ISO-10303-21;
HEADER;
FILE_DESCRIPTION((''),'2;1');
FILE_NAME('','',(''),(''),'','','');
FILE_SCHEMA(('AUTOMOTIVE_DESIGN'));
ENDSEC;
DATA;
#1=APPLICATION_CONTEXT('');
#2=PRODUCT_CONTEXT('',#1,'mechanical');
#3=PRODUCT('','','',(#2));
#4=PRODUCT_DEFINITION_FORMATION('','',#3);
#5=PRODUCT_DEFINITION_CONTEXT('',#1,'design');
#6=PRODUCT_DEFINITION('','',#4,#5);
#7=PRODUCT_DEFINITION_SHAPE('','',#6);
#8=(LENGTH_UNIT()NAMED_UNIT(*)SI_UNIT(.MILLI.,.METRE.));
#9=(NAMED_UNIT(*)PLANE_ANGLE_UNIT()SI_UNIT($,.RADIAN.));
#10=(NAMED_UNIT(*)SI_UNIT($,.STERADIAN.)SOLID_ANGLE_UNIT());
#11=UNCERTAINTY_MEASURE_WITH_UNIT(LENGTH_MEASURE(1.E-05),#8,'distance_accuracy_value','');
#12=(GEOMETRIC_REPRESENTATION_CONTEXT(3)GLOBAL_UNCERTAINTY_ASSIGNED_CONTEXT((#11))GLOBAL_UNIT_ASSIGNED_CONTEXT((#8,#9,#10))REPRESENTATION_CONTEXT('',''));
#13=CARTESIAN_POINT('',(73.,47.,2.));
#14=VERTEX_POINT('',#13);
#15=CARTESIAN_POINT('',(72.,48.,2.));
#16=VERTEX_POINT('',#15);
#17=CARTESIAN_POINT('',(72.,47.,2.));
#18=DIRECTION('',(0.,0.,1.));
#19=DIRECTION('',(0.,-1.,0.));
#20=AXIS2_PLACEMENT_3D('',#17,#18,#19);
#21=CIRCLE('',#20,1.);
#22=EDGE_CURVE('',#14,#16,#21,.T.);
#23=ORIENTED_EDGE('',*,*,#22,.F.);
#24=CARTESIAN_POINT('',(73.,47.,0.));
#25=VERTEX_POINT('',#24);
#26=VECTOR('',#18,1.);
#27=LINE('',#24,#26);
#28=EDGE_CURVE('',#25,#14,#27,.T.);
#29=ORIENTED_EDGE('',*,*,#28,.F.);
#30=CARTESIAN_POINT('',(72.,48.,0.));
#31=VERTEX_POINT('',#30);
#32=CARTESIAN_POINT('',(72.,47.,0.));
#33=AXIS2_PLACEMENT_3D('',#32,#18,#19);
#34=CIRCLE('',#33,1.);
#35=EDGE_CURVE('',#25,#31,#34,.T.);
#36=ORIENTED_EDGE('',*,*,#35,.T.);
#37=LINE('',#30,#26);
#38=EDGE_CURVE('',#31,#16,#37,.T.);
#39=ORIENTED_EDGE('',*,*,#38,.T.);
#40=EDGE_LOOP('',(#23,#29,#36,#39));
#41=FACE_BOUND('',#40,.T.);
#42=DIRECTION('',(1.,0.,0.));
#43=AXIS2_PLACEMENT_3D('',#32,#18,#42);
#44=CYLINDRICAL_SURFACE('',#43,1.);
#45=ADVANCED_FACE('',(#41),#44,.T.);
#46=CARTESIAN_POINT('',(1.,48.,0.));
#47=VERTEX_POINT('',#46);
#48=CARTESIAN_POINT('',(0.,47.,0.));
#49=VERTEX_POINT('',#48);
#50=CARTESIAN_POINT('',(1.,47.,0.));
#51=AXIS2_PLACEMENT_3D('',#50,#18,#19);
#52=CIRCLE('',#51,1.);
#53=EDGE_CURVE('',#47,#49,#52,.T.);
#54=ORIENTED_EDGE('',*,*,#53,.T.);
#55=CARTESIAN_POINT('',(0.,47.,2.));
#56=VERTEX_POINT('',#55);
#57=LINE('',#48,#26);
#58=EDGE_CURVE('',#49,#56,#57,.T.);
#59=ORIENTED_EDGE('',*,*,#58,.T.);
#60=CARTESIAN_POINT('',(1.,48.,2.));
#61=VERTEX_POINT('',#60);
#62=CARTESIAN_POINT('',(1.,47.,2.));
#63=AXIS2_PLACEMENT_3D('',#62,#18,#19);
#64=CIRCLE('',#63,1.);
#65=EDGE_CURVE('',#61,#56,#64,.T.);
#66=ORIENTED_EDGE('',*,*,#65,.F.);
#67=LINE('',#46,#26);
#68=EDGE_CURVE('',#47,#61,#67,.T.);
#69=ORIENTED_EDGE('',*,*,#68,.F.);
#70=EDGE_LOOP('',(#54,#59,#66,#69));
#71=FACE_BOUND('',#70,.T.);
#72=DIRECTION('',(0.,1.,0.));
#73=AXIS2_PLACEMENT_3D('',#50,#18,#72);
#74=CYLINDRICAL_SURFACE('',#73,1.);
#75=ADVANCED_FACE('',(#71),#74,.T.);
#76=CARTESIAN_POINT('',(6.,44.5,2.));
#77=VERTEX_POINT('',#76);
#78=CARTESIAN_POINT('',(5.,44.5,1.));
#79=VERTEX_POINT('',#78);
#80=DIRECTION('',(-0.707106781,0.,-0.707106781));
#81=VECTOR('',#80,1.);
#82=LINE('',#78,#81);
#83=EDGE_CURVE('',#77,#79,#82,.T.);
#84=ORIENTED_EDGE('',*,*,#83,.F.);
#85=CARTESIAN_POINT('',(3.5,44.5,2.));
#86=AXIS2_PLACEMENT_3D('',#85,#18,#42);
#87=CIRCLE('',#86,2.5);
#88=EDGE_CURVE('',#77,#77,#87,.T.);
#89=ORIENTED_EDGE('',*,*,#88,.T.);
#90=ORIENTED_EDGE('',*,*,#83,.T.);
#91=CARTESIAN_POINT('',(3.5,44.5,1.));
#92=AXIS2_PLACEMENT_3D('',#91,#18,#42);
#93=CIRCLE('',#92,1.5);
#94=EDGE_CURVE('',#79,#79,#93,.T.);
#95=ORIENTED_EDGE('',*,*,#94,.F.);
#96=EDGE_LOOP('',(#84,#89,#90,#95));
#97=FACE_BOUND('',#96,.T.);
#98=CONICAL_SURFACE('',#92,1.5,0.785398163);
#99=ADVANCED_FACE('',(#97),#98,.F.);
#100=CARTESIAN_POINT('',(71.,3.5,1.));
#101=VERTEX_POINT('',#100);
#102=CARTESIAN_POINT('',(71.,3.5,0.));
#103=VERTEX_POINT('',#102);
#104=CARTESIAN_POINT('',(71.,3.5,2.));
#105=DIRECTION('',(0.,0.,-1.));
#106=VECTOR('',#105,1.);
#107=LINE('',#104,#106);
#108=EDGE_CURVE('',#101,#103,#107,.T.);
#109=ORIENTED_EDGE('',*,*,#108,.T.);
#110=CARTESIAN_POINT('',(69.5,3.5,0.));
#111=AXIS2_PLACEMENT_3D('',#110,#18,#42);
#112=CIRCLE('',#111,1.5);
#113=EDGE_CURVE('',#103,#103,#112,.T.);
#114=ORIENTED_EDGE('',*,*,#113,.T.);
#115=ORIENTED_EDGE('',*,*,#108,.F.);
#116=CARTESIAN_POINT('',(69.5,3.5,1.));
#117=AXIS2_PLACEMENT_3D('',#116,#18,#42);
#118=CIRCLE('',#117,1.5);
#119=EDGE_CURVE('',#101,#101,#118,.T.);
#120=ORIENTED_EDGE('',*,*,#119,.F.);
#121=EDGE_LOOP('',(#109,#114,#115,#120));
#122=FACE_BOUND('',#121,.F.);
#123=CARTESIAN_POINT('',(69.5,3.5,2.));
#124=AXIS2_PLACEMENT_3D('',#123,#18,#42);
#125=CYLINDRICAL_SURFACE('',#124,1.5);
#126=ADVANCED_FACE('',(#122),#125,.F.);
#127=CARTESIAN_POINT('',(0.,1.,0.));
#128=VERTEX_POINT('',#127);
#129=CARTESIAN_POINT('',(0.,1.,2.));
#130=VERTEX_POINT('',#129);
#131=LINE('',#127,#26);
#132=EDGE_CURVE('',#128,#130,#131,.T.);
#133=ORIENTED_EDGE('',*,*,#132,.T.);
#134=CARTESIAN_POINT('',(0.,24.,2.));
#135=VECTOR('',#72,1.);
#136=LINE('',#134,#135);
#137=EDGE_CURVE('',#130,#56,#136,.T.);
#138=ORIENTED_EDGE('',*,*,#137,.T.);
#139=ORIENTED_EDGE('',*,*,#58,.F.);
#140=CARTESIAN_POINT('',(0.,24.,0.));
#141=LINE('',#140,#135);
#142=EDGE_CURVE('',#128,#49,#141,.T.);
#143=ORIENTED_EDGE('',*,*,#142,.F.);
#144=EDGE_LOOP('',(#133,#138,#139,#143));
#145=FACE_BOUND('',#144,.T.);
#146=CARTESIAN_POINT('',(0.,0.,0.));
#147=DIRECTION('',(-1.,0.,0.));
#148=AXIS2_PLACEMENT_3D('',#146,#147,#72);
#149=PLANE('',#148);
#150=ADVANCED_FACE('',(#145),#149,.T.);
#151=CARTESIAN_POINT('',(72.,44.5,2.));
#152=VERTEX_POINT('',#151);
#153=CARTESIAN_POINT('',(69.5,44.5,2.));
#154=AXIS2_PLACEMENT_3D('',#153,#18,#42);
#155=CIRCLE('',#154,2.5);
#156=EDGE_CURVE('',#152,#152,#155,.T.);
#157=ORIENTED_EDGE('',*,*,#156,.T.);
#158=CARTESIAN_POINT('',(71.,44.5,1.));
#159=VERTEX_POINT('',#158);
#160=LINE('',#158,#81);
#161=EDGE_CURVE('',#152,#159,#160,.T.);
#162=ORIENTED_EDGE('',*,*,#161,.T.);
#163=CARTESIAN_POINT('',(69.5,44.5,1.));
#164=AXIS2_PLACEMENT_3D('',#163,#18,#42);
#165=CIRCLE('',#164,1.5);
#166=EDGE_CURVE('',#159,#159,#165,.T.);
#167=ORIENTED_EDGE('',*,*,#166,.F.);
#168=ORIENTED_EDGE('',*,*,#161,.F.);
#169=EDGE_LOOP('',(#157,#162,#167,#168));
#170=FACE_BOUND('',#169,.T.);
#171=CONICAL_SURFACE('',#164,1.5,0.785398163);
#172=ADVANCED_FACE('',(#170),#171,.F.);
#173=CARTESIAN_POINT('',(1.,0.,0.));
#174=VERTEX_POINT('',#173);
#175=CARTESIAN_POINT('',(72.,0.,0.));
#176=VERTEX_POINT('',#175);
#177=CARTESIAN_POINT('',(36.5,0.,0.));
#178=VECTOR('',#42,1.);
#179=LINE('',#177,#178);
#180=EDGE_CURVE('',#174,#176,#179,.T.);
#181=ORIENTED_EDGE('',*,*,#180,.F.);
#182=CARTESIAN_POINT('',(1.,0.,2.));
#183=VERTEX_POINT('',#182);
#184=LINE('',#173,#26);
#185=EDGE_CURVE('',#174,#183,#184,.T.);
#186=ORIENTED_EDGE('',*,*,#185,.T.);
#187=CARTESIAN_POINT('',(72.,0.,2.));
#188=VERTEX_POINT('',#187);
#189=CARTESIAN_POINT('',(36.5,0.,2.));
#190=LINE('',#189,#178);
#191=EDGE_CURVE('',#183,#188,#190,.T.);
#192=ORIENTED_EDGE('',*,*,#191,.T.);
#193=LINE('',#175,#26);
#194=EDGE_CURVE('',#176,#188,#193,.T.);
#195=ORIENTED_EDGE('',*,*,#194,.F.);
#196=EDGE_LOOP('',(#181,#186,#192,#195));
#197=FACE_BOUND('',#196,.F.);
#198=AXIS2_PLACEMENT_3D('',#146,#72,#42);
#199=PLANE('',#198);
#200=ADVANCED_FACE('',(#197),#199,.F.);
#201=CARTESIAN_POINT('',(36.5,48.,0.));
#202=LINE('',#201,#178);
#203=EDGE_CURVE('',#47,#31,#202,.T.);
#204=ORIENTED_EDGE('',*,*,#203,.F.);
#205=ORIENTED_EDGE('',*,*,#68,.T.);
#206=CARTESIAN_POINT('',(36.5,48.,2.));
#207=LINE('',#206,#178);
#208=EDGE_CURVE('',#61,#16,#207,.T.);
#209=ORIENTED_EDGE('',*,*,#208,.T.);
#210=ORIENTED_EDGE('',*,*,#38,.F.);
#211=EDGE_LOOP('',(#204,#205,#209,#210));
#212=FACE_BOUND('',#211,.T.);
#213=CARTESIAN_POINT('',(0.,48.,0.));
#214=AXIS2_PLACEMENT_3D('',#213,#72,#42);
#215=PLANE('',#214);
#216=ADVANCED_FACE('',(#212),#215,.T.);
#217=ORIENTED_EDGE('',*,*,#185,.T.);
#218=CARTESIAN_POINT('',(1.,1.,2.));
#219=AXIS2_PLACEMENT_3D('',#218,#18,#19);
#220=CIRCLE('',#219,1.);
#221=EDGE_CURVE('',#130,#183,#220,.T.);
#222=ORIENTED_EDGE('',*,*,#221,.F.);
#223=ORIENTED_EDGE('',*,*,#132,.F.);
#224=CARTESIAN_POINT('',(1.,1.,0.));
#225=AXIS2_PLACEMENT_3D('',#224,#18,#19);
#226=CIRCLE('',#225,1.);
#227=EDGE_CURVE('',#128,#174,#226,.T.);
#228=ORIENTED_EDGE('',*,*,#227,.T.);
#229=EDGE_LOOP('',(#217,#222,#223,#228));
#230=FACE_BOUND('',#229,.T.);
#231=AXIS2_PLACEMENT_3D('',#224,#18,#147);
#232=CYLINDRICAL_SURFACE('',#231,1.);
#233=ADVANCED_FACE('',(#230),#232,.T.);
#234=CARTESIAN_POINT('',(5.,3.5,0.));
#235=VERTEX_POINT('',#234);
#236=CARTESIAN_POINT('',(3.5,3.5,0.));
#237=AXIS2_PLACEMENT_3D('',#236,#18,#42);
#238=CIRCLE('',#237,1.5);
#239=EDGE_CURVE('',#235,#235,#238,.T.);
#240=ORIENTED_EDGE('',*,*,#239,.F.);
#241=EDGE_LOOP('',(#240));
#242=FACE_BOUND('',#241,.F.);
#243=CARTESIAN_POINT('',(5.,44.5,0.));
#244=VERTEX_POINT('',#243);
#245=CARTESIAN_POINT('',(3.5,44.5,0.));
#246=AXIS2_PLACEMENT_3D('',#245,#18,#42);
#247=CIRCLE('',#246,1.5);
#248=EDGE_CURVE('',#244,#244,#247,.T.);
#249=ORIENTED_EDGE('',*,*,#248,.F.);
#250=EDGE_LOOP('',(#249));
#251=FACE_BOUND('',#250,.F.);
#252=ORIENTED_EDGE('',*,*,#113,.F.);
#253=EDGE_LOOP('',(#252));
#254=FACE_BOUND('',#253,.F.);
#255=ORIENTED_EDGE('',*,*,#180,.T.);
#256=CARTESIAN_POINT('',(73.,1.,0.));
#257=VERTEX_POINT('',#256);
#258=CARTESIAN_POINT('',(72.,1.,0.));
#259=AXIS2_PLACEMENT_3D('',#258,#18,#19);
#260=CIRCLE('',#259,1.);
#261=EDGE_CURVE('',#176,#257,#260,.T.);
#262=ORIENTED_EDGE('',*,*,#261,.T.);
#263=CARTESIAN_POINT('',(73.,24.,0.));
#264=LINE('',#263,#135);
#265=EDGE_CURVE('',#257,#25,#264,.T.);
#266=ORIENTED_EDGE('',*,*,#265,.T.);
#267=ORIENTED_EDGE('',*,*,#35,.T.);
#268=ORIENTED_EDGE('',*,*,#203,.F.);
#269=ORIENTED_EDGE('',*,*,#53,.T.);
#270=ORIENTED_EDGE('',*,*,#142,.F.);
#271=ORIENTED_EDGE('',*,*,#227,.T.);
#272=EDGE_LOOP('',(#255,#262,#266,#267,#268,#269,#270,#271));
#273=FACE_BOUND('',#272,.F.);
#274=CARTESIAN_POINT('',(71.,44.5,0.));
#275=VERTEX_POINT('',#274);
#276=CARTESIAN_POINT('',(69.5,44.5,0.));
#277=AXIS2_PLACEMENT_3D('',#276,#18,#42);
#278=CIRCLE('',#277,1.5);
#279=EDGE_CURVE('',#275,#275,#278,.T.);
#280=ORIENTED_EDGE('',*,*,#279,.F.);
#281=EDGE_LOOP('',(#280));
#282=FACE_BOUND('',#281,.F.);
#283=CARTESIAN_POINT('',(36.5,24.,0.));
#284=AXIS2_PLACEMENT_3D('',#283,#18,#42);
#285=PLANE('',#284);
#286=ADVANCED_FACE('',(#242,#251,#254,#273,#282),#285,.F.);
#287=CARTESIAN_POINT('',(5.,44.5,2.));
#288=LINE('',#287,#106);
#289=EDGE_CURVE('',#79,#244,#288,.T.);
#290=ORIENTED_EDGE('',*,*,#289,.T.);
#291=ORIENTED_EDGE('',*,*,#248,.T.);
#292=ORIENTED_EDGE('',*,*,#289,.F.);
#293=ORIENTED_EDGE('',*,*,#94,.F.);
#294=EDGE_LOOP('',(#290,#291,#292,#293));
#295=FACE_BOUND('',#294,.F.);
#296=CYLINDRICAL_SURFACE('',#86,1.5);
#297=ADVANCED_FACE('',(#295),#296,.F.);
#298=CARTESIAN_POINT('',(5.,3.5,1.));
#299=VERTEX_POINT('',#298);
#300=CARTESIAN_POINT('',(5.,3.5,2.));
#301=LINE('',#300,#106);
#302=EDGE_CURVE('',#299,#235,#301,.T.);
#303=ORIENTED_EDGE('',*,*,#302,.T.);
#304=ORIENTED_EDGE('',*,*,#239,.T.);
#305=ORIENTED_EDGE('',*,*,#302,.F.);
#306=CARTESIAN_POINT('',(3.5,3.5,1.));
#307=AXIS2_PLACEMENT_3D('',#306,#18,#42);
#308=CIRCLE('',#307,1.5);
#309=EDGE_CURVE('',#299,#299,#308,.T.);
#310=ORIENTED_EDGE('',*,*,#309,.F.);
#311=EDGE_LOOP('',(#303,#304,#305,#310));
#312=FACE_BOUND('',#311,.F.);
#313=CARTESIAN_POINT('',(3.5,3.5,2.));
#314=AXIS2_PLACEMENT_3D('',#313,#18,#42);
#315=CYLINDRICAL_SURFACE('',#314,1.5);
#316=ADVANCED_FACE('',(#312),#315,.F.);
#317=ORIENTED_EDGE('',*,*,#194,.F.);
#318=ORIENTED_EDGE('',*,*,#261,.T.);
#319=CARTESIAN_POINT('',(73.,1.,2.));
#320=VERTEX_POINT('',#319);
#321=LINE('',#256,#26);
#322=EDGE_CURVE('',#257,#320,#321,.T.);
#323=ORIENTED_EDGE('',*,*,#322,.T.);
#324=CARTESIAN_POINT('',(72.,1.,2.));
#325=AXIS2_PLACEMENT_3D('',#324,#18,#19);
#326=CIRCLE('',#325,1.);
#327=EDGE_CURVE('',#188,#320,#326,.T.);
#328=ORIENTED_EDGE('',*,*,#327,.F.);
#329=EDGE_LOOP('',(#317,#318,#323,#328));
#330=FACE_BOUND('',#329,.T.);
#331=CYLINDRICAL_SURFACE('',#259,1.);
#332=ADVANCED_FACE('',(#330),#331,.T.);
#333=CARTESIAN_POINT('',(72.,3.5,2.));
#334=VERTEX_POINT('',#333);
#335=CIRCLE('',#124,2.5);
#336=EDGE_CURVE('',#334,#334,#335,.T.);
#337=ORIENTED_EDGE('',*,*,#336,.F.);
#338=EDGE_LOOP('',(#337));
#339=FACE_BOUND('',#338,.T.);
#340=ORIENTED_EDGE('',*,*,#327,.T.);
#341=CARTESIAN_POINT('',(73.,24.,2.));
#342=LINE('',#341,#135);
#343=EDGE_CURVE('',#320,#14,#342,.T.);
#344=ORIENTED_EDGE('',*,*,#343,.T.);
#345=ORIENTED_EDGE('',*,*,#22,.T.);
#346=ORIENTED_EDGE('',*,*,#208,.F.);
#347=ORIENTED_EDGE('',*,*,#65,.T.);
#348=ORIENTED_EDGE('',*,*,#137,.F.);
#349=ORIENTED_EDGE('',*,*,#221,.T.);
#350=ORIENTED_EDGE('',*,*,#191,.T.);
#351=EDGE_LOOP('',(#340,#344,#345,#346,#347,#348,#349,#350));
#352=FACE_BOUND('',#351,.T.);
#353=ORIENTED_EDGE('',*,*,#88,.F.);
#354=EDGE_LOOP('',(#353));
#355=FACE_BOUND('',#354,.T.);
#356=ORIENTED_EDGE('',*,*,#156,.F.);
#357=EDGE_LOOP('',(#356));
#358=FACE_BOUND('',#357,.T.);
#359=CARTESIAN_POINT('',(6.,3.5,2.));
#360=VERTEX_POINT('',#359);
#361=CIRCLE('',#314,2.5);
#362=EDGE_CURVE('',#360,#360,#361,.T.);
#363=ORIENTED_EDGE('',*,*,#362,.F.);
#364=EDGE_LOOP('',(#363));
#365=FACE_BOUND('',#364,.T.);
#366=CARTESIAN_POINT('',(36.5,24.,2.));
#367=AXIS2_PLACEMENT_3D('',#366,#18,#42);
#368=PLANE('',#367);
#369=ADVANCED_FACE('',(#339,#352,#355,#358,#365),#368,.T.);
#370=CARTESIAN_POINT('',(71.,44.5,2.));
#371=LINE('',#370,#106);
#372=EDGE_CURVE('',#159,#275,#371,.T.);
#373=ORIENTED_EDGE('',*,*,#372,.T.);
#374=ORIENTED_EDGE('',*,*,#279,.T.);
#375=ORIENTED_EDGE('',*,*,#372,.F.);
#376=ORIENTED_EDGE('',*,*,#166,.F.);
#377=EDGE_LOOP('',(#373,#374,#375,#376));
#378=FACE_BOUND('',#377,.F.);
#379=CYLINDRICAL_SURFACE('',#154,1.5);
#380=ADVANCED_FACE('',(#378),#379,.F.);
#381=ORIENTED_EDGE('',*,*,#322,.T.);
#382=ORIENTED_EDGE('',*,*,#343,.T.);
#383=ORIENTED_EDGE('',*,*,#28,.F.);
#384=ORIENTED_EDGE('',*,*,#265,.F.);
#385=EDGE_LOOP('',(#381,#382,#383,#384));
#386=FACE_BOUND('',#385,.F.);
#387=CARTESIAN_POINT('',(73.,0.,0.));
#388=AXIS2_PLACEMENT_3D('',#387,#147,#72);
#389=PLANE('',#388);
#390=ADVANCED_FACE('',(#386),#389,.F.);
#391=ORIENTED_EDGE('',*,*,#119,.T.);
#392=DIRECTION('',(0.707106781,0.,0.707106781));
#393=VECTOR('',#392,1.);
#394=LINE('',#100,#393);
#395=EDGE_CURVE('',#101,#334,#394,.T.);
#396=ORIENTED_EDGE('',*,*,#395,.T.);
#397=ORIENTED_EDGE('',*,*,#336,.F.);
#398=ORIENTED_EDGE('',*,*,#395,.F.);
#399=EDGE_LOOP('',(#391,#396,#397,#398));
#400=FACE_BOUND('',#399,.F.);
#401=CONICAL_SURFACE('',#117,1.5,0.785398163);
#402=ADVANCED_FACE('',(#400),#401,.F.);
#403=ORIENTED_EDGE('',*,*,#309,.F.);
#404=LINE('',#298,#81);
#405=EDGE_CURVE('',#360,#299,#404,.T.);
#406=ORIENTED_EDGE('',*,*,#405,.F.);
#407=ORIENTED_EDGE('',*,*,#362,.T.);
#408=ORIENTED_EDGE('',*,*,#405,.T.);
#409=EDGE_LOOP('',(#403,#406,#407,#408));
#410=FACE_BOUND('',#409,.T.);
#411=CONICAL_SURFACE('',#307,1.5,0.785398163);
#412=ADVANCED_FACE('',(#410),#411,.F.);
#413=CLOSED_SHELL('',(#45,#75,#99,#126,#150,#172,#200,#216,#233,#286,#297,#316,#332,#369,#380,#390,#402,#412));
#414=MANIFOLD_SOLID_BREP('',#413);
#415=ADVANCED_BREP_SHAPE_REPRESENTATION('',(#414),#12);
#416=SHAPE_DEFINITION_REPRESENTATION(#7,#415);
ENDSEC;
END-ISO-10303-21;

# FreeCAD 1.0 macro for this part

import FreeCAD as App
import Part
import Sketcher


def edges_at(feature, points):
    """Names of the edges that pass closest to the given points."""
    edges = feature.Shape.Edges
    near = lambda p: min(range(len(edges)), key=lambda i: edges[i].distToShape(Part.Vertex(*p))[0])
    return sorted({f"Edge{near(p) + 1}" for p in points})


def add_polygon(sketch, points):
    """Adds a closed chain of lines whose ends are joined by coincident constraints."""
    first, n = sketch.GeometryCount, len(points)
    for a, b in zip(points, points[1:] + points[:1]):
        sketch.addGeometry(Part.LineSegment(App.Vector(*a, 0), App.Vector(*b, 0)), False)
    for i in range(n):
        sketch.addConstraint(Sketcher.Constraint("Coincident", first + i, 2, first + (i + 1) % n, 1))

doc = App.newDocument("Part")
body = doc.addObject("PartDesign::Body", "Body")

# Sketch on XY plane
sketch1 = body.newObject("Sketcher::SketchObject", "Sketch")
sketch1.AttachmentSupport = (doc.getObject("XY_Plane"), [""])
sketch1.MapMode = "FlatFace"
add_polygon(sketch1, [(0, 48), (0, 0), (73, 0), (73, 48)])  # lines 0-3
sketch1.addConstraint([
    Sketcher.Constraint("Vertical", 0),
    Sketcher.Constraint("Horizontal", 1),
    Sketcher.Constraint("Vertical", 2),
    Sketcher.Constraint("Horizontal", 3),
    Sketcher.Constraint("Coincident", 0, 2, -1, 1),
    Sketcher.Constraint("DistanceX", 1, 1, 1, 2, 73.0),
    Sketcher.Constraint("DistanceY", 0, 2, 0, 1, 48.0),
])
pad1 = body.newObject("PartDesign::Pad", "Pad")
pad1.Profile = sketch1
pad1.Length = 2
doc.recompute()

fillet = body.newObject("PartDesign::Fillet", "Fillet")
fillet.Base = (pad1, edges_at(pad1, [(0, 0, 1)]))
fillet.Radius = 1
doc.recompute()

fillet2 = body.newObject("PartDesign::Fillet", "Fillet001")
fillet2.Base = (fillet, edges_at(fillet, [(73, 0, 1)]))
fillet2.Radius = 1
doc.recompute()

fillet3 = body.newObject("PartDesign::Fillet", "Fillet002")
fillet3.Base = (fillet2, edges_at(fillet2, [(73, 48, 1)]))
fillet3.Radius = 1
doc.recompute()

fillet4 = body.newObject("PartDesign::Fillet", "Fillet003")
fillet4.Base = (fillet3, edges_at(fillet3, [(0, 48, 1)]))
fillet4.Radius = 1

# Sketch on XY plane
sketch2 = body.newObject("Sketcher::SketchObject", "Sketch001")
sketch2.AttachmentSupport = (doc.getObject("XY_Plane"), [""])
sketch2.MapMode = "FlatFace"
sketch2.AttachmentOffset = App.Placement(App.Vector(0, 0, 2), App.Rotation())
sketch2.addGeometry(Part.Circle(App.Vector(3.5, 3.5, 0), App.Vector(0, 0, 1), 1.5), False)
sketch2.addConstraint([
    Sketcher.Constraint("Diameter", 0, 3.0),
    Sketcher.Constraint("DistanceX", -1, 1, 0, 3, 3.5),
    Sketcher.Constraint("DistanceY", -1, 1, 0, 3, 3.5),
])
pocket1 = body.newObject("PartDesign::Pocket", "Pocket")
pocket1.Profile = sketch2
pocket1.Length = 5

# Sketch on XY plane
sketch3 = body.newObject("Sketcher::SketchObject", "Sketch002")
sketch3.AttachmentSupport = (doc.getObject("XY_Plane"), [""])
sketch3.MapMode = "FlatFace"
sketch3.AttachmentOffset = App.Placement(App.Vector(0, 0, 2), App.Rotation())
sketch3.addGeometry(Part.Circle(App.Vector(3.5, 44.5, 0), App.Vector(0, 0, 1), 1.5), False)
sketch3.addConstraint([
    Sketcher.Constraint("Diameter", 0, 3.0),
    Sketcher.Constraint("DistanceX", -1, 1, 0, 3, 3.5),
    Sketcher.Constraint("DistanceY", -1, 1, 0, 3, 44.5),
])
pocket2 = body.newObject("PartDesign::Pocket", "Pocket001")
pocket2.Profile = sketch3
pocket2.Length = 5

# Sketch on XY plane
sketch4 = body.newObject("Sketcher::SketchObject", "Sketch003")
sketch4.AttachmentSupport = (doc.getObject("XY_Plane"), [""])
sketch4.MapMode = "FlatFace"
sketch4.AttachmentOffset = App.Placement(App.Vector(0, 0, 2), App.Rotation())
sketch4.addGeometry(Part.Circle(App.Vector(69.5, 44.5, 0), App.Vector(0, 0, 1), 1.5), False)
sketch4.addConstraint([
    Sketcher.Constraint("Diameter", 0, 3.0),
    Sketcher.Constraint("DistanceX", -1, 1, 0, 3, 69.5),
    Sketcher.Constraint("DistanceY", -1, 1, 0, 3, 44.5),
])
pocket3 = body.newObject("PartDesign::Pocket", "Pocket002")
pocket3.Profile = sketch4
pocket3.Length = 5

# Sketch on XY plane
sketch5 = body.newObject("Sketcher::SketchObject", "Sketch004")
sketch5.AttachmentSupport = (doc.getObject("XY_Plane"), [""])
sketch5.MapMode = "FlatFace"
sketch5.AttachmentOffset = App.Placement(App.Vector(0, 0, 2), App.Rotation())
sketch5.addGeometry(Part.Circle(App.Vector(69.5, 3.5, 0), App.Vector(0, 0, 1), 1.5), False)
sketch5.addConstraint([
    Sketcher.Constraint("Diameter", 0, 3.0),
    Sketcher.Constraint("DistanceX", -1, 1, 0, 3, 69.5),
    Sketcher.Constraint("DistanceY", -1, 1, 0, 3, 3.5),
])
pocket4 = body.newObject("PartDesign::Pocket", "Pocket003")
pocket4.Profile = sketch5
pocket4.Length = 5
doc.recompute()

chamfer = body.newObject("PartDesign::Chamfer", "Chamfer")
chamfer.Base = (pocket4, edges_at(pocket4, [(68, 3.5, 2)]))
chamfer.Size = 1
doc.recompute()

chamfer2 = body.newObject("PartDesign::Chamfer", "Chamfer001")
chamfer2.Base = (chamfer, edges_at(chamfer, [(2, 44.5, 2)]))
chamfer2.Size = 1
doc.recompute()

chamfer3 = body.newObject("PartDesign::Chamfer", "Chamfer002")
chamfer3.Base = (chamfer2, edges_at(chamfer2, [(68, 44.5, 2)]))
chamfer3.Size = 1
doc.recompute()

chamfer4 = body.newObject("PartDesign::Chamfer", "Chamfer003")
chamfer4.Base = (chamfer3, edges_at(chamfer3, [(2, 3.5, 2)]))
chamfer4.Size = 1

doc.recompute()
